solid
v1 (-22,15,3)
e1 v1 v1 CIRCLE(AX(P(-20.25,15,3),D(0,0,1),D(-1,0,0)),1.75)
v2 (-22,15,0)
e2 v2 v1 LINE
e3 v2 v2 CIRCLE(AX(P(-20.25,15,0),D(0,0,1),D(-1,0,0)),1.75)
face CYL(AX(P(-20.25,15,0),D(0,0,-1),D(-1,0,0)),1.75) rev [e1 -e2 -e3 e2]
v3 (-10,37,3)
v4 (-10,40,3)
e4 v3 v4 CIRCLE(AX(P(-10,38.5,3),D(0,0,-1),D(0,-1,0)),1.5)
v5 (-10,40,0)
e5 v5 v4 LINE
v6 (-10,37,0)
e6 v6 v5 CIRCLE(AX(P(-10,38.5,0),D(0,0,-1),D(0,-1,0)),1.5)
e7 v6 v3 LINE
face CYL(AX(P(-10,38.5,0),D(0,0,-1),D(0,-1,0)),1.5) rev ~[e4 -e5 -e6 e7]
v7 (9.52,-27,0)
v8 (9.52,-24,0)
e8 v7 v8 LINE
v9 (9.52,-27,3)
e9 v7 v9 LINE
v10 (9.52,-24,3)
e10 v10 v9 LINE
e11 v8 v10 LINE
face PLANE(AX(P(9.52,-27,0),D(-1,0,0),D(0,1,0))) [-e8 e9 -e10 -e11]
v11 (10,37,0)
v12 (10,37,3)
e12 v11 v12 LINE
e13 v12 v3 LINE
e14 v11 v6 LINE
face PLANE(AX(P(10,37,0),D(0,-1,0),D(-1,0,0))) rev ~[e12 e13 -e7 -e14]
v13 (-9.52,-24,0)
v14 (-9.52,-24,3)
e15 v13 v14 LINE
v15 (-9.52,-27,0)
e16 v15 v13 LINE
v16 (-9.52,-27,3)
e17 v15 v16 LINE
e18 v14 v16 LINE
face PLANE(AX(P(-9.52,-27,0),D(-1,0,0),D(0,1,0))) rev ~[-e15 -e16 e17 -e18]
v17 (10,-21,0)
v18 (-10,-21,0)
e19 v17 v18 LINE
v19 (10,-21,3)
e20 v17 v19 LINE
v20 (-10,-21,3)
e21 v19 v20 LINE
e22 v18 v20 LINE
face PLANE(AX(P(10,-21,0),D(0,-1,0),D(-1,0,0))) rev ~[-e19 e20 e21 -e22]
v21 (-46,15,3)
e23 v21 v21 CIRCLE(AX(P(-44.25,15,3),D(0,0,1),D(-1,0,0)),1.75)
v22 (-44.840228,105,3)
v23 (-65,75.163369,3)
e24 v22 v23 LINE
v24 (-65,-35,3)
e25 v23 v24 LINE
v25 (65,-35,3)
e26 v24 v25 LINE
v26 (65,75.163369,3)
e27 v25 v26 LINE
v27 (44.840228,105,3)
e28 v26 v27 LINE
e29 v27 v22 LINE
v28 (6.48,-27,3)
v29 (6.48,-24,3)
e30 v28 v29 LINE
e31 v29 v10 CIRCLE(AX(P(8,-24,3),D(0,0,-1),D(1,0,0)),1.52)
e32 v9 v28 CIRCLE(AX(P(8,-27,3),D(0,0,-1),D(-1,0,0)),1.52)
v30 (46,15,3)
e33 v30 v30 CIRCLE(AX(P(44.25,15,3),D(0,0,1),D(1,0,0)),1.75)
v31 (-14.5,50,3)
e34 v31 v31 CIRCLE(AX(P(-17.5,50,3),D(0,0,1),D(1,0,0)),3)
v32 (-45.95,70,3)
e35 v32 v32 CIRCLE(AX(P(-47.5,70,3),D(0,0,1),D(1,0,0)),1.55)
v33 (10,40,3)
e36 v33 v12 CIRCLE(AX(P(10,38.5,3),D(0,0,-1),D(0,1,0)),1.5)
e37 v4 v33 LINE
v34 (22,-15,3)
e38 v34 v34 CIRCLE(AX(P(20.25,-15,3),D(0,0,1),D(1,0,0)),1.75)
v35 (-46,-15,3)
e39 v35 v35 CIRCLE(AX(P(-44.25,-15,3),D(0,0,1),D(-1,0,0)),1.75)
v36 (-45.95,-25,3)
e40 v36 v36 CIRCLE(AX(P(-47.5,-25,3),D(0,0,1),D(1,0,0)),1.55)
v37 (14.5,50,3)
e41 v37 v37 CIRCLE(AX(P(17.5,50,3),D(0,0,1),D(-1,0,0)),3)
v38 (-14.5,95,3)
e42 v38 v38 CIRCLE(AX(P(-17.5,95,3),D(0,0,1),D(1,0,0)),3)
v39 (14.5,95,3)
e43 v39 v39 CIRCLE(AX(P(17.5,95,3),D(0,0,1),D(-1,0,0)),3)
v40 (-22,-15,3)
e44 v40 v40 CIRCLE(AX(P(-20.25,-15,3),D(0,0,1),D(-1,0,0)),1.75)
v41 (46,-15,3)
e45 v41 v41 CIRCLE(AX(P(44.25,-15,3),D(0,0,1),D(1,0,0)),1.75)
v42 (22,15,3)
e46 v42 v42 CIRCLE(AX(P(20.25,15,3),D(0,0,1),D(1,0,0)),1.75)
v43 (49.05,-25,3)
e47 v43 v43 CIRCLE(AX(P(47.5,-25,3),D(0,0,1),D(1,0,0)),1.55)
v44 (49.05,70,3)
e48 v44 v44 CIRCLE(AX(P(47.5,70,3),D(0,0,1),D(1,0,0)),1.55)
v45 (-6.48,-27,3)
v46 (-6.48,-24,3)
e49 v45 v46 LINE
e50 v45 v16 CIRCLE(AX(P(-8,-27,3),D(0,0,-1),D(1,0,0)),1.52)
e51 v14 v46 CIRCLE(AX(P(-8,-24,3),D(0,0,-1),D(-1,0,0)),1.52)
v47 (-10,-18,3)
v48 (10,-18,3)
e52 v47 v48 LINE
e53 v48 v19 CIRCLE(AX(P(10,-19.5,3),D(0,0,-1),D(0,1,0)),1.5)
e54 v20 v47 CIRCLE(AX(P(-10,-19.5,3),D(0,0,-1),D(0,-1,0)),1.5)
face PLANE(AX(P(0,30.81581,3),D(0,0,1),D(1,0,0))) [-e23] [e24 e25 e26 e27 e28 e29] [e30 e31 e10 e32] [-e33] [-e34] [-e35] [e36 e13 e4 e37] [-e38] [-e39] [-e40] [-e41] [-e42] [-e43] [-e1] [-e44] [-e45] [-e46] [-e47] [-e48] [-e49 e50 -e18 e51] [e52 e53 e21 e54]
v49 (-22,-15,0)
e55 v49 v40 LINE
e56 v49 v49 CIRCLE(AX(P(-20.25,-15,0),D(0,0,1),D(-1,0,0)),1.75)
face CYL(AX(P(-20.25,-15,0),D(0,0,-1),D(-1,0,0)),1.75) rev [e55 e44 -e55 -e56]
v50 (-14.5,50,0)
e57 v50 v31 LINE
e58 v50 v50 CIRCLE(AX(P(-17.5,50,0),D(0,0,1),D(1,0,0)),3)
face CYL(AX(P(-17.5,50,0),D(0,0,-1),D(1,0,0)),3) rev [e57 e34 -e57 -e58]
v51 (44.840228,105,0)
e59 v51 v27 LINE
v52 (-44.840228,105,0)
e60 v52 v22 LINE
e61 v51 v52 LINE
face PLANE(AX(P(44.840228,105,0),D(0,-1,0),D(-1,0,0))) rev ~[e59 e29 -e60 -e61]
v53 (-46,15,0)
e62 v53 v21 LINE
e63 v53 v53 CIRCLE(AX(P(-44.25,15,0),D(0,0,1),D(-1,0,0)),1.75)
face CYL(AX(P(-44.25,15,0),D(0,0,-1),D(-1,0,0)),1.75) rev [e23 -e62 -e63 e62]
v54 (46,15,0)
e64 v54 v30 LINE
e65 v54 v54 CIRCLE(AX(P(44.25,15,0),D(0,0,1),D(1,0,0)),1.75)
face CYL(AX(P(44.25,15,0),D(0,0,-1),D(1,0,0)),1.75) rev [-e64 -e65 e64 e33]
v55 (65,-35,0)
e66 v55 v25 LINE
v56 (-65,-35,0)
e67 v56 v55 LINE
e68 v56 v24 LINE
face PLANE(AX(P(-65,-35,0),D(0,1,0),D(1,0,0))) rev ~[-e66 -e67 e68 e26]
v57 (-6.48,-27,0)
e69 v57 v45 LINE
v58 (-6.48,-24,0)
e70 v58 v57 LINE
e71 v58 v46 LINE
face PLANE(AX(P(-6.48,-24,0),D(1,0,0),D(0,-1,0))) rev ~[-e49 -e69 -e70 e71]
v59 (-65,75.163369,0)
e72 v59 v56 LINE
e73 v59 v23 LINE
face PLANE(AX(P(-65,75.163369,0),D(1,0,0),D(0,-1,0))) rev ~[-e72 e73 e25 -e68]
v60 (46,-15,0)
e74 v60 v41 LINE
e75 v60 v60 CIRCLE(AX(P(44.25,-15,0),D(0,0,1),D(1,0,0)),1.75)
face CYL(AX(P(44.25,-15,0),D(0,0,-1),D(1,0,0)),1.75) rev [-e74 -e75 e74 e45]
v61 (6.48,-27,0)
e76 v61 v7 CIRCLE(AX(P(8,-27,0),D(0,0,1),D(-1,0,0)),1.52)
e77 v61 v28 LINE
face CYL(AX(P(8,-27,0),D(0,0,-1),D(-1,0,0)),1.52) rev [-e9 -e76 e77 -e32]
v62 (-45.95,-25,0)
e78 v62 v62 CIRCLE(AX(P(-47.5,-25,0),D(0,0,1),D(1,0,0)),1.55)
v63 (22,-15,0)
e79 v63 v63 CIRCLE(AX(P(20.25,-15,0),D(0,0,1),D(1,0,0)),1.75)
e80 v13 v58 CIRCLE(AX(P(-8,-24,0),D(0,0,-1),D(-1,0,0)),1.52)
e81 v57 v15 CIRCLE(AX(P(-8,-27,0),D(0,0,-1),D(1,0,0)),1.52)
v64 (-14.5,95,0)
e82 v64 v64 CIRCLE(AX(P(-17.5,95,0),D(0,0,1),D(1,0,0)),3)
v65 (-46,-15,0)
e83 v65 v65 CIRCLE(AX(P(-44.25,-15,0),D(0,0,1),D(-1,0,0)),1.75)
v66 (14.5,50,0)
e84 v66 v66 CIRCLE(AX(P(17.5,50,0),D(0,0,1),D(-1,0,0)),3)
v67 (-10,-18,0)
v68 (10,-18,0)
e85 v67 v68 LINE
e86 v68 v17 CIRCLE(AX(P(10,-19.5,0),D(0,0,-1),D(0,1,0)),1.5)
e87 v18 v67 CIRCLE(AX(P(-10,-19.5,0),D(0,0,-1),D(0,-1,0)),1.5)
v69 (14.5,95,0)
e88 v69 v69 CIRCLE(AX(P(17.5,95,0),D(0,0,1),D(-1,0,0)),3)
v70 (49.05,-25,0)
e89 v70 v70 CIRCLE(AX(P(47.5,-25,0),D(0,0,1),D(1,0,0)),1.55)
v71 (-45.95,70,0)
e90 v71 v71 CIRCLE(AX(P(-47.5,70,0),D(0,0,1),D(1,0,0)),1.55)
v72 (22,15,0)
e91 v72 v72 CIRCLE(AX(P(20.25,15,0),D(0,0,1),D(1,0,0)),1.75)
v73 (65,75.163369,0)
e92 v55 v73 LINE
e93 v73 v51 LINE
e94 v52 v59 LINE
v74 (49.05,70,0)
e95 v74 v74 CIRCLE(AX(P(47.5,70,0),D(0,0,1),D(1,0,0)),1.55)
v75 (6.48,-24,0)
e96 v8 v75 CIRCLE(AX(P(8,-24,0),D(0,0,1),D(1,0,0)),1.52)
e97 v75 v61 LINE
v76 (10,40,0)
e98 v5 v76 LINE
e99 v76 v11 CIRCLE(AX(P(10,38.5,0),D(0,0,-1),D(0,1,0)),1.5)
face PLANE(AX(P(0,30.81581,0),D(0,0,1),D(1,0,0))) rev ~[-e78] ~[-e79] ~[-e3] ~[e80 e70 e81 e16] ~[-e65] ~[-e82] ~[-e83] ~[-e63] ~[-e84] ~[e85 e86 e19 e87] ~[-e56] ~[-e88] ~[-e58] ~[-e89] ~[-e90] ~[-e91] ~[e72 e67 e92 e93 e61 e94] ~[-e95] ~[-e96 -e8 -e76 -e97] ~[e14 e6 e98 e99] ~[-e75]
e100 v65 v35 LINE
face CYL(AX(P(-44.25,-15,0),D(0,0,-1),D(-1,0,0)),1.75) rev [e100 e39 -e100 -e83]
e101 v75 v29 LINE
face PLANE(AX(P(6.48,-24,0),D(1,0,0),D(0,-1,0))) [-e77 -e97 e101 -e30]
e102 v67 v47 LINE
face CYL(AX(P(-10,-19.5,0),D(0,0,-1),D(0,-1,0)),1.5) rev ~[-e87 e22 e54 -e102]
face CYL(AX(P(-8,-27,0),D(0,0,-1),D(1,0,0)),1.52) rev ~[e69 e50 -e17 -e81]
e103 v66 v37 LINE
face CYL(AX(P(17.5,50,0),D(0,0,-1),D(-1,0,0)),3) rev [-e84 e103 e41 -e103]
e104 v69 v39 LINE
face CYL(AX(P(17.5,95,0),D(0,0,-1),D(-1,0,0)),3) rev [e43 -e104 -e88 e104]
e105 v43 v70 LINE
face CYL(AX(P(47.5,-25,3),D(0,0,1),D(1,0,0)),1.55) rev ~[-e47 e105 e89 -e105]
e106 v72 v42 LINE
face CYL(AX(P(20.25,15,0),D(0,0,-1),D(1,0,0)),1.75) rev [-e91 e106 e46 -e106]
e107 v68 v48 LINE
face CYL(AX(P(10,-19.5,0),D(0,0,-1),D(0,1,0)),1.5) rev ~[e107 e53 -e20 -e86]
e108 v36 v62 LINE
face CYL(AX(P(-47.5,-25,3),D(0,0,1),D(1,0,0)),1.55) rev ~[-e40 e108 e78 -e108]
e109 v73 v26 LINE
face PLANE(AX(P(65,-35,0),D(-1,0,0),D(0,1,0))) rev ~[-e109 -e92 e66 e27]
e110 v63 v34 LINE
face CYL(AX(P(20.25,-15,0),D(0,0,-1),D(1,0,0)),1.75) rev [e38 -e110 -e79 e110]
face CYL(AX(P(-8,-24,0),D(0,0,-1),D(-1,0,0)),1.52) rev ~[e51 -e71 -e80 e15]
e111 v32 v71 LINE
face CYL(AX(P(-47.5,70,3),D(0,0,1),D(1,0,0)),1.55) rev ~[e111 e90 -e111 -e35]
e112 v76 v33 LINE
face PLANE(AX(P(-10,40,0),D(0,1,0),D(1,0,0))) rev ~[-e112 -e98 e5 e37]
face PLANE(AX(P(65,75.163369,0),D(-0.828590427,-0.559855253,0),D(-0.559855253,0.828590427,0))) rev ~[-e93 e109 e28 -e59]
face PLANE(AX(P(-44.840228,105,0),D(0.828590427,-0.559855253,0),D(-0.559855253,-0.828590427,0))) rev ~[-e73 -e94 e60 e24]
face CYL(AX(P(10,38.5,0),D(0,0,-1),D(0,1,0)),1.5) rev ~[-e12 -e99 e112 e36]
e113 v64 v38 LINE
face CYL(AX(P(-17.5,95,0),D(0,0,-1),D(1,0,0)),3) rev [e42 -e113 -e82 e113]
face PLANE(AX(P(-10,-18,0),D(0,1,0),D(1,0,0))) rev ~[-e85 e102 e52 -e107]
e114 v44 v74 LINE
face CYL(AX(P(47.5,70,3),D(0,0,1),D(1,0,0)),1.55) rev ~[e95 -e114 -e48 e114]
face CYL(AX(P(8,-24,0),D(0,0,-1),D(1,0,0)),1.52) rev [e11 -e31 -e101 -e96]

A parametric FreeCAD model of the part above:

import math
import FreeCAD as App
import Part
import Sketcher


def add_polygon(sketch, points):
    """Adds a closed chain of lines whose ends are joined by coincident constraints."""
    first, n = sketch.GeometryCount, len(points)
    for a, b in zip(points, points[1:] + points[:1]):
        sketch.addGeometry(Part.LineSegment(App.Vector(*a, 0), App.Vector(*b, 0)), False)
    for i in range(n):
        sketch.addConstraint(Sketcher.Constraint("Coincident", first + i, 2, first + (i + 1) % n, 1))

doc = App.newDocument("Part")
body = doc.addObject("PartDesign::Body", "Body")

# Sketch on XY plane
sketch1 = body.newObject("Sketcher::SketchObject", "Sketch")
sketch1.AttachmentSupport = (doc.getObject("XY_Plane"), [""])
sketch1.MapMode = "FlatFace"
add_polygon(sketch1, [(65, 75.2), (44.8, 105), (-44.8, 105), (-65, 75.2), (-65, -35), (65, -35)])  # lines 0-5
sketch1.addGeometry(Part.Circle(App.Vector(-44.2, -15, 0), App.Vector(0, 0, 1), 1.8), False)  # 6
sketch1.addGeometry(Part.Circle(App.Vector(-20.2, -15, 0), App.Vector(0, 0, 1), 1.8), False)  # 7
sketch1.addGeometry(Part.Circle(App.Vector(-44.2, 15, 0), App.Vector(0, 0, 1), 1.8), False)  # 8
sketch1.addGeometry(Part.Circle(App.Vector(-20.2, 15, 0), App.Vector(0, 0, 1), 1.8), False)  # 9
sketch1.addGeometry(Part.ArcOfCircle(Part.Circle(App.Vector(-10, -19.5, 0), App.Vector(0, 0, 1), 1.5), math.radians(90), math.radians(270)), False)  # 10
sketch1.addGeometry(Part.LineSegment(App.Vector(-10, -18, 0), App.Vector(10, -18, 0)), False)  # 11
sketch1.addGeometry(Part.ArcOfCircle(Part.Circle(App.Vector(10, -19.5, 0), App.Vector(0, 0, 1), 1.5), math.radians(-90), math.radians(90)), False)  # 12
sketch1.addGeometry(Part.LineSegment(App.Vector(10, -21, 0), App.Vector(-10, -21, 0)), False)  # 13
sketch1.addGeometry(Part.Circle(App.Vector(20.2, -15, 0), App.Vector(0, 0, 1), 1.8), False)  # 14
sketch1.addGeometry(Part.Circle(App.Vector(44.2, -15, 0), App.Vector(0, 0, 1), 1.8), False)  # 15
sketch1.addGeometry(Part.Circle(App.Vector(20.2, 15, 0), App.Vector(0, 0, 1), 1.8), False)  # 16
sketch1.addGeometry(Part.Circle(App.Vector(44.2, 15, 0), App.Vector(0, 0, 1), 1.8), False)  # 17
sketch1.addGeometry(Part.Circle(App.Vector(-17.5, 50, 0), App.Vector(0, 0, 1), 3), False)  # 18
sketch1.addGeometry(Part.Circle(App.Vector(-17.5, 95, 0), App.Vector(0, 0, 1), 3), False)  # 19
sketch1.addGeometry(Part.ArcOfCircle(Part.Circle(App.Vector(-10, 38.5, 0), App.Vector(0, 0, 1), 1.5), math.radians(90), math.radians(270)), False)  # 20
sketch1.addGeometry(Part.LineSegment(App.Vector(-10, 40, 0), App.Vector(10, 40, 0)), False)  # 21
sketch1.addGeometry(Part.ArcOfCircle(Part.Circle(App.Vector(10, 38.5, 0), App.Vector(0, 0, 1), 1.5), math.radians(-90), math.radians(90)), False)  # 22
sketch1.addGeometry(Part.LineSegment(App.Vector(10, 37, 0), App.Vector(-10, 37, 0)), False)  # 23
sketch1.addGeometry(Part.Circle(App.Vector(17.5, 50, 0), App.Vector(0, 0, 1), 3), False)  # 24
sketch1.addGeometry(Part.Circle(App.Vector(17.5, 95, 0), App.Vector(0, 0, 1), 3), False)  # 25
sketch1.addConstraint([
    Sketcher.Constraint("Tangent", 10, 1, 11, 1),
    Sketcher.Constraint("Tangent", 11, 2, 12, 2),
    Sketcher.Constraint("Tangent", 12, 1, 13, 1),
    Sketcher.Constraint("Tangent", 13, 2, 10, 2),
    Sketcher.Constraint("Tangent", 20, 1, 21, 1),
    Sketcher.Constraint("Tangent", 21, 2, 22, 2),
    Sketcher.Constraint("Tangent", 22, 1, 23, 1),
    Sketcher.Constraint("Tangent", 23, 2, 20, 2),
    Sketcher.Constraint("Horizontal", 1),
    Sketcher.Constraint("Vertical", 3),
    Sketcher.Constraint("Horizontal", 4),
    Sketcher.Constraint("Vertical", 5),
    Sketcher.Constraint("Horizontal", 11),
    Sketcher.Constraint("Horizontal", 13),
    Sketcher.Constraint("Horizontal", 21),
    Sketcher.Constraint("Horizontal", 23),
    Sketcher.Constraint("Equal", 6, 7),
    Sketcher.Constraint("Equal", 7, 8),
    Sketcher.Constraint("Equal", 8, 9),
    Sketcher.Constraint("Equal", 9, 14),
    Sketcher.Constraint("Equal", 14, 15),
    Sketcher.Constraint("Equal", 15, 16),
    Sketcher.Constraint("Equal", 16, 17),
    Sketcher.Constraint("Equal", 18, 19),
    Sketcher.Constraint("Equal", 12, 20),
    Sketcher.Constraint("Equal", 19, 24),
    Sketcher.Constraint("Equal", 24, 25),
    Sketcher.Constraint("Symmetric", 9, 3, 14, 3, -1, 1),
    Sketcher.Constraint("Symmetric", 8, 3, 15, 3, -1, 1),
    Sketcher.Constraint("Symmetric", 7, 3, 16, 3, -1, 1),
    Sketcher.Constraint("Symmetric", 6, 3, 17, 3, -1, 1),
    Sketcher.Constraint("Symmetric", 7, 3, 14, 3, -2),
    Sketcher.Constraint("Symmetric", 6, 3, 15, 3, -2),
    Sketcher.Constraint("Symmetric", 18, 3, 24, 3, -2),
    Sketcher.Constraint("Symmetric", 19, 3, 25, 3, -2),
    Sketcher.Constraint("Symmetric", 2, 2, 5, 2, -2),
    Sketcher.Constraint("Horizontal", 6, 3, 7, 3),
    Sketcher.Constraint("Vertical", 18, 3, 19, 3),
    Sketcher.Constraint("Vertical", 10, 3, 20, 3),
    Sketcher.Constraint("Vertical", 12, 3, 22, 3),
    Sketcher.Constraint("Equal", 0, 2),
    Sketcher.Constraint("Diameter", 18, 6.0),
    Sketcher.Constraint("Diameter", 6, 3.5),
    Sketcher.Constraint("Radius", 10, 1.5),
    Sketcher.Constraint("DistanceX", 4, 1, 4, 2, 130.0),
    Sketcher.Constraint("DistanceX", 11, 1, 11, 2, 20.0),
    Sketcher.Constraint("DistanceY", 6, 3, -1, 1, 15.0),
    Sketcher.Constraint("DistanceX", 10, 3, -1, 1, 10.0),
    Sketcher.Constraint("DistanceY", -1, 1, 18, 3, 50.0),
    Sketcher.Constraint("DistanceY", -1, 1, 19, 3, 95.0),
    Sketcher.Constraint("DistanceY", -1, 1, 0, 2, 105.0),
    Sketcher.Constraint("DistanceY", 3, 2, -1, 1, 35.0),
    Sketcher.Constraint("DistanceY", 10, 1, -1, 1, 18.0),
    Sketcher.Constraint("DistanceY", -1, 1, 20, 1, 40.0),
    Sketcher.Constraint("DistanceX", 6, 3, 7, 3, 24.0),
    Sketcher.Constraint("DistanceX", 18, 3, 24, 3, 35.0),
    Sketcher.Constraint("DistanceX", 7, 3, 14, 3, 40.5),
    Sketcher.Constraint("Distance", 0, 36.008901),
    Sketcher.Constraint("DistanceY", 3, 2, 3, 1, 110.163369),
])
pad1 = body.newObject("PartDesign::Pad", "Pad")
pad1.Profile = sketch1
pad1.Length = 3

# Sketch on XY plane
sketch2 = body.newObject("Sketcher::SketchObject", "Sketch001")
sketch2.AttachmentSupport = (doc.getObject("XY_Plane"), [""])
sketch2.MapMode = "FlatFace"
sketch2.addGeometry([
    Part.LineSegment(App.Vector(9.5, -24, 0), App.Vector(9.5, -27, 0)),  # 0
    Part.ArcOfCircle(Part.Circle(App.Vector(8, -27, 0), App.Vector(0, 0, 1), 1.5), math.radians(180), math.radians(360)),  # 1
    Part.LineSegment(App.Vector(6.5, -27, 0), App.Vector(6.5, -24, 0)),  # 2
    Part.ArcOfCircle(Part.Circle(App.Vector(8, -24, 0), App.Vector(0, 0, 1), 1.5), math.radians(0), math.radians(180)),  # 3
    Part.LineSegment(App.Vector(-9.5, -27, 0), App.Vector(-9.5, -24, 0)),  # 4
    Part.ArcOfCircle(Part.Circle(App.Vector(-8, -24, 0), App.Vector(0, 0, 1), 1.5), math.radians(0), math.radians(180)),  # 5
    Part.LineSegment(App.Vector(-6.5, -24, 0), App.Vector(-6.5, -27, 0)),  # 6
    Part.ArcOfCircle(Part.Circle(App.Vector(-8, -27, 0), App.Vector(0, 0, 1), 1.5), math.radians(180), math.radians(360)),  # 7
], False)
sketch2.addConstraint([
    Sketcher.Constraint("Tangent", 0, 2, 1, 2),
    Sketcher.Constraint("Tangent", 1, 1, 2, 1),
    Sketcher.Constraint("Tangent", 2, 2, 3, 2),
    Sketcher.Constraint("Tangent", 3, 1, 0, 1),
    Sketcher.Constraint("Tangent", 4, 2, 5, 2),
    Sketcher.Constraint("Tangent", 5, 1, 6, 1),
    Sketcher.Constraint("Tangent", 6, 2, 7, 2),
    Sketcher.Constraint("Tangent", 7, 1, 4, 1),
    Sketcher.Constraint("Vertical", 0),
    Sketcher.Constraint("Vertical", 2),
    Sketcher.Constraint("Vertical", 4),
    Sketcher.Constraint("Vertical", 6),
    Sketcher.Constraint("Equal", 3, 5),
    Sketcher.Constraint("Symmetric", 3, 3, 5, 3, -2),
    Sketcher.Constraint("Horizontal", 1, 3, 7, 3),
    Sketcher.Constraint("DistanceY", 0, 2, 0, 1, 3.0),
    Sketcher.Constraint("Radius", 1, 1.52),
    Sketcher.Constraint("DistanceX", -1, 1, 1, 3, 8.0),
    Sketcher.Constraint("DistanceY", 1, 3, -1, 1, 27.0),
])
pocket1 = body.newObject("PartDesign::Pocket", "Pocket")
pocket1.Profile = sketch2
pocket1.Length = 10
pocket1.Reversed = True

# Sketch on XY plane
sketch3 = body.newObject("Sketcher::SketchObject", "Sketch002")
sketch3.AttachmentSupport = (doc.getObject("XY_Plane"), [""])
sketch3.MapMode = "FlatFace"
sketch3.AttachmentOffset = App.Placement(App.Vector(0, 0, 3), App.Rotation())
sketch3.addGeometry([
    Part.Circle(App.Vector(-47.5, 70, 0), App.Vector(0, 0, 1), 1.6),
    Part.Circle(App.Vector(47.5, 70, 0), App.Vector(0, 0, 1), 1.6),
    Part.Circle(App.Vector(-47.5, -25, 0), App.Vector(0, 0, 1), 1.6),
    Part.Circle(App.Vector(47.5, -25, 0), App.Vector(0, 0, 1), 1.6),
], False)
sketch3.addConstraint([
    Sketcher.Constraint("Equal", 0, 1),
    Sketcher.Constraint("Equal", 1, 2),
    Sketcher.Constraint("Equal", 2, 3),
    Sketcher.Constraint("Symmetric", 0, 3, 1, 3, -2),
    Sketcher.Constraint("Symmetric", 2, 3, 3, 3, -2),
    Sketcher.Constraint("Vertical", 0, 3, 2, 3),
    Sketcher.Constraint("Diameter", 0, 3.1),
    Sketcher.Constraint("DistanceY", -1, 1, 0, 3, 70.0),
    Sketcher.Constraint("DistanceY", 2, 3, -1, 1, 25.0),
    Sketcher.Constraint("DistanceX", 0, 3, 1, 3, 95.0),
])
pocket2 = body.newObject("PartDesign::Pocket", "Pocket001")
pocket2.Profile = sketch3
pocket2.Length = 10

doc.recompute()
